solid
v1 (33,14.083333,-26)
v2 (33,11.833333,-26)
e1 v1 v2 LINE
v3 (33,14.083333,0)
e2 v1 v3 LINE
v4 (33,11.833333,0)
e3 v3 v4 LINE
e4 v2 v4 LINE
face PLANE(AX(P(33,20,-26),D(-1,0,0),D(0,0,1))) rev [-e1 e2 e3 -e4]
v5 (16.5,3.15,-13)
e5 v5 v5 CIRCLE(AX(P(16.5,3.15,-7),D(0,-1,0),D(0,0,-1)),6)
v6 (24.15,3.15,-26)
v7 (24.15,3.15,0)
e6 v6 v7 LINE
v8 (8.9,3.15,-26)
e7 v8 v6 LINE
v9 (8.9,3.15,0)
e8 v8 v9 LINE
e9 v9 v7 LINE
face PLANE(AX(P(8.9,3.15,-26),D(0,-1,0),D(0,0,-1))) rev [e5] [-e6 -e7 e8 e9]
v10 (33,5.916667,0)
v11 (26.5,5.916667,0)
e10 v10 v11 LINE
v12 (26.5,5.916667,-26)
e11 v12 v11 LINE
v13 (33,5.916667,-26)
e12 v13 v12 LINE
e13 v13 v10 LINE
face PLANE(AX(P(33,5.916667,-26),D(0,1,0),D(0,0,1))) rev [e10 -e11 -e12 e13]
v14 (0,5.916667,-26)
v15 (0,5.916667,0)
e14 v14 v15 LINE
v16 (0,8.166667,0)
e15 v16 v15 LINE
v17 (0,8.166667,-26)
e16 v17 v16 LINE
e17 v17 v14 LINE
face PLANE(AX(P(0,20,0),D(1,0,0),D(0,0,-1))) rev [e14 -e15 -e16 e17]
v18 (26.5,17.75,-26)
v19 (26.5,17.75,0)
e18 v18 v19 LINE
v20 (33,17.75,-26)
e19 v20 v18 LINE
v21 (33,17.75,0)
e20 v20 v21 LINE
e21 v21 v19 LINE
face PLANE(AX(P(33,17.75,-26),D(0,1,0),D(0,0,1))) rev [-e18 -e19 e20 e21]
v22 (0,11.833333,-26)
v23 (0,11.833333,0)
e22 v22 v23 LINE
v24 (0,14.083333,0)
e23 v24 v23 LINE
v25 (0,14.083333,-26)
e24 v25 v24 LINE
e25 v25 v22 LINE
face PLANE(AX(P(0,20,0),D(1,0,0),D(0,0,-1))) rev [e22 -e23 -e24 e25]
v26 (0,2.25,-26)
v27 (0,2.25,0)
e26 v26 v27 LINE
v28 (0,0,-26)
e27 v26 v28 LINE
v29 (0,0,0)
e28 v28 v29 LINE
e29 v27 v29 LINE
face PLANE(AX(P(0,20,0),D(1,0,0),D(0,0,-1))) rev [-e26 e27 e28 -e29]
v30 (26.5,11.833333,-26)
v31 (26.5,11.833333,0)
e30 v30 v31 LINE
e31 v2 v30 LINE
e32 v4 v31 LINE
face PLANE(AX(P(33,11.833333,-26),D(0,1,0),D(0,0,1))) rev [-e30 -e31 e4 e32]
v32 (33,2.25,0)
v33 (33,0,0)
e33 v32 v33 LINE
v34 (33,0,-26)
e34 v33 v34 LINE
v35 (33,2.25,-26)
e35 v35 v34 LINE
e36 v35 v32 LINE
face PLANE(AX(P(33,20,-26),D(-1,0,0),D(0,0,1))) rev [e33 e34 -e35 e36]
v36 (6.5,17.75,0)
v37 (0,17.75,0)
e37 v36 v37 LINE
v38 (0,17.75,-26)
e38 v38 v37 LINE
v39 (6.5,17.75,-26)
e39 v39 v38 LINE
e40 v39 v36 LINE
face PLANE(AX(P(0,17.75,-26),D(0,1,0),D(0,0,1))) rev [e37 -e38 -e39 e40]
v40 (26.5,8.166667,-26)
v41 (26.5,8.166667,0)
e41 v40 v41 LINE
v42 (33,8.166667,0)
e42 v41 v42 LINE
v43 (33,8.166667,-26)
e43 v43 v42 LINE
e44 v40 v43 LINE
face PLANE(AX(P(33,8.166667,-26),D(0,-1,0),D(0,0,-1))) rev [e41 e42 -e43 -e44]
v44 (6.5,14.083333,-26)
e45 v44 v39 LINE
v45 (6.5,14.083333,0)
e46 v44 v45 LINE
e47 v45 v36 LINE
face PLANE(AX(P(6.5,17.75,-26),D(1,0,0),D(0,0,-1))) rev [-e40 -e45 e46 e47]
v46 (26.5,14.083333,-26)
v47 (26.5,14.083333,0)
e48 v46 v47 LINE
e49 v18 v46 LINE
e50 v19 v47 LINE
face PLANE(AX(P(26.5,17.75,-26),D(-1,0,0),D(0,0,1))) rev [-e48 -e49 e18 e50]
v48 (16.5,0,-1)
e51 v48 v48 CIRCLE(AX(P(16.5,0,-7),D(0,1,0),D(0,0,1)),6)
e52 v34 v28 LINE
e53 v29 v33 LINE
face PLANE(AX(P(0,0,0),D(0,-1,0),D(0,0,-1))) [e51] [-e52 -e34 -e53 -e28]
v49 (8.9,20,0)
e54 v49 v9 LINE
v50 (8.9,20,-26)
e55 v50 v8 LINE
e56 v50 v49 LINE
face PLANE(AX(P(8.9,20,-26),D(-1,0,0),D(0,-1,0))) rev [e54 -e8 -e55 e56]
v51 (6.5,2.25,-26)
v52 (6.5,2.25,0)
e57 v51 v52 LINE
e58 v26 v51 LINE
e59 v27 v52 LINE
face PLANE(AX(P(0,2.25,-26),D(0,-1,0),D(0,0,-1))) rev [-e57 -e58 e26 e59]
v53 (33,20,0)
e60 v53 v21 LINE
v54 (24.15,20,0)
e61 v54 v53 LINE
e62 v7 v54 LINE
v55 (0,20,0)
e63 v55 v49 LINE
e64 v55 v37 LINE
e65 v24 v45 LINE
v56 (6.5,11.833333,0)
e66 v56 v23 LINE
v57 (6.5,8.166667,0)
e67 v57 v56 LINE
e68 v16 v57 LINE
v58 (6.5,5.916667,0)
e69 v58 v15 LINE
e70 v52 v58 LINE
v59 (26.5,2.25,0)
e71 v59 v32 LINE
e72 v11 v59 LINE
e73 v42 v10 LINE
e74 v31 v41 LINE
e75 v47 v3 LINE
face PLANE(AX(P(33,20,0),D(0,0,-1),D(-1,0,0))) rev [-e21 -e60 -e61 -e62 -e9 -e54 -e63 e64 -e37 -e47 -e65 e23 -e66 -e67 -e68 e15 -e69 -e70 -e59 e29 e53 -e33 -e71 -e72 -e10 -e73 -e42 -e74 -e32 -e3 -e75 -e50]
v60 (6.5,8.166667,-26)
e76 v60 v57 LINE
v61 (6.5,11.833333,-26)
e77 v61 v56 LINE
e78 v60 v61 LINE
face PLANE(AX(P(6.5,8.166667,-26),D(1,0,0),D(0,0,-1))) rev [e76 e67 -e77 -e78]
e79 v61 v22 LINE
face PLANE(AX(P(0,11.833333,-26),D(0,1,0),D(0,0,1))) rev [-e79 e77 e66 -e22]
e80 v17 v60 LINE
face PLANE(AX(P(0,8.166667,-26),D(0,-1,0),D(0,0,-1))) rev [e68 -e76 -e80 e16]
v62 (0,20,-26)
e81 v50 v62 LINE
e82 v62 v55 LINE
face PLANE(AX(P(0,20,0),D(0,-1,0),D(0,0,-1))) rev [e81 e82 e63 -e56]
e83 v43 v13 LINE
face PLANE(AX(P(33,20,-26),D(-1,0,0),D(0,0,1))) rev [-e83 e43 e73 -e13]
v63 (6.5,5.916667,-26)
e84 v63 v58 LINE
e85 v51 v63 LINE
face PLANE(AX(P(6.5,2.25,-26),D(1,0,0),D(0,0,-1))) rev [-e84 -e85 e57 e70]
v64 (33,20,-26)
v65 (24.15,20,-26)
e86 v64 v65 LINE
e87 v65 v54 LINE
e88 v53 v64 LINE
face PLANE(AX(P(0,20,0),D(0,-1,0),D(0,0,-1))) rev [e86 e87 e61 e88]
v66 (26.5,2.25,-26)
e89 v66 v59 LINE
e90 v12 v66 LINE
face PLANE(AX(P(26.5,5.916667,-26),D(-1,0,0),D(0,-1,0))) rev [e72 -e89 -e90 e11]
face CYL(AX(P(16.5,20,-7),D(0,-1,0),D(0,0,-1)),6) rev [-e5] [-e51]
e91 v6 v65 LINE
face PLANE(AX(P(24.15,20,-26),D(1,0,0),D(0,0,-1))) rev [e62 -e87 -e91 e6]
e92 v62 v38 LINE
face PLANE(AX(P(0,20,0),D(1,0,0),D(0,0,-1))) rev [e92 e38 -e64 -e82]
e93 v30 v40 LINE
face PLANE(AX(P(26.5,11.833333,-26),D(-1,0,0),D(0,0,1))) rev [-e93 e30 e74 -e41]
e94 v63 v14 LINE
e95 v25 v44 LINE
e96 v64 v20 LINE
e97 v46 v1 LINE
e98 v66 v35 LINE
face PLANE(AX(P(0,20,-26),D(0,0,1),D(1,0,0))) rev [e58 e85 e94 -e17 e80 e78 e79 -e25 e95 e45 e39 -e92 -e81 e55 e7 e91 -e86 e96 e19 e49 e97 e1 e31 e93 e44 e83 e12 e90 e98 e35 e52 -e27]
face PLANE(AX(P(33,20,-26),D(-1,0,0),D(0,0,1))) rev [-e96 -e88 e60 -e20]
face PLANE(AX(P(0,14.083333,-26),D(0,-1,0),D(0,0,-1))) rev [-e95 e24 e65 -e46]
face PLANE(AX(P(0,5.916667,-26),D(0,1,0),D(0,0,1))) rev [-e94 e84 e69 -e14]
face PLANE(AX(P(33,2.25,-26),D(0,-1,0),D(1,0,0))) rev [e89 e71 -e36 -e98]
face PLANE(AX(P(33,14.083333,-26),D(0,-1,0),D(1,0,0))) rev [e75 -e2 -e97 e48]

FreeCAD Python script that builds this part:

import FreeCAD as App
import Part
import Sketcher
Q = App.Units.Quantity


def add_polygon(sketch, points):
    """Adds a closed chain of lines whose ends are joined by coincident constraints."""
    first, n = sketch.GeometryCount, len(points)
    for a, b in zip(points, points[1:] + points[:1]):
        sketch.addGeometry(Part.LineSegment(App.Vector(*a, 0), App.Vector(*b, 0)), False)
    for i in range(n):
        sketch.addConstraint(Sketcher.Constraint("Coincident", first + i, 2, first + (i + 1) % n, 1))

doc = App.newDocument("Part")
body = doc.addObject("PartDesign::Body", "Body")

# Sketch on XZ plane
sketch1 = doc.addObject("Sketcher::SketchObject", "Sketch")
body.addObject(sketch1)
sketch1.AttachmentSupport = (doc.XZ_Plane, [""])
sketch1.MapMode = "FlatFace"
add_polygon(sketch1, [(0, -26), (0, 0), (33, 0), (33, -26)])  # lines 0-3
sketch1.addGeometry(Part.Circle(App.Vector(16, -7, 0), App.Vector(0, 0, 1), 6), False)  # 4
sketch1.addConstraint([
    Sketcher.Constraint("Vertical", 0),
    Sketcher.Constraint("Horizontal", 1),
    Sketcher.Constraint("Vertical", 2),
    Sketcher.Constraint("Horizontal", 3),
    Sketcher.Constraint("Coincident", 0, 2, -1, 1),
    Sketcher.Constraint("Diameter", 4, Q("12 mm")),
    Sketcher.Constraint("DistanceX", 1, 1, 1, 2, Q("33 mm")),
    Sketcher.Constraint("DistanceY", 0, 1, 0, 2, Q("26 mm")),
    Sketcher.Constraint("DistanceY", 4, 3, -1, 1, Q("7 mm")),
    Sketcher.Constraint("DistanceX", -1, 1, 4, 3, Q("16.5 mm")),
])
pad1 = doc.addObject("PartDesign::Pad", "Pad")
body.addObject(pad1)
pad1.Profile = sketch1
pad1.Length = 20
pad1.Reversed = True

# Sketch on XY plane
sketch2 = doc.addObject("Sketcher::SketchObject", "Sketch001")
body.addObject(sketch2)
sketch2.AttachmentSupport = (doc.XY_Plane, [""])
sketch2.MapMode = "FlatFace"
add_polygon(sketch2, [(0, 5.9), (0, 2.3), (6.5, 2.3), (6.5, 5.9)])  # lines 0-3
add_polygon(sketch2, [(0, 11.8), (0, 8.2), (6.5, 8.2), (6.5, 11.8)])  # lines 4-7
add_polygon(sketch2, [(0, 17.7), (0, 14.1), (6.5, 14.1), (6.5, 17.7)])  # lines 8-11
add_polygon(sketch2, [(26.5, 17.7), (26.5, 14.1), (33, 14.1), (33, 17.7)])  # lines 12-15
add_polygon(sketch2, [(26.5, 11.8), (26.5, 8.2), (33, 8.2), (33, 11.8)])  # lines 16-19
add_polygon(sketch2, [(26.5, 5.9), (26.5, 2.3), (33, 2.3), (33, 5.9)])  # lines 20-23
add_polygon(sketch2, [(8.9, 20), (8.9, 3.1), (24.1, 3.1), (24.1, 20)])  # lines 24-27
sketch2.addConstraint([
    Sketcher.Constraint("Vertical", 0),
    Sketcher.Constraint("Horizontal", 1),
    Sketcher.Constraint("Vertical", 2),
    Sketcher.Constraint("Horizontal", 3),
    Sketcher.Constraint("Vertical", 4),
    Sketcher.Constraint("Horizontal", 5),
    Sketcher.Constraint("Vertical", 6),
    Sketcher.Constraint("Horizontal", 7),
    Sketcher.Constraint("Vertical", 8),
    Sketcher.Constraint("Horizontal", 9),
    Sketcher.Constraint("Vertical", 10),
    Sketcher.Constraint("Horizontal", 11),
    Sketcher.Constraint("Vertical", 12),
    Sketcher.Constraint("Horizontal", 13),
    Sketcher.Constraint("Vertical", 14),
    Sketcher.Constraint("Horizontal", 15),
    Sketcher.Constraint("Vertical", 16),
    Sketcher.Constraint("Horizontal", 17),
    Sketcher.Constraint("Vertical", 18),
    Sketcher.Constraint("Horizontal", 19),
    Sketcher.Constraint("Vertical", 20),
    Sketcher.Constraint("Horizontal", 21),
    Sketcher.Constraint("Vertical", 22),
    Sketcher.Constraint("Horizontal", 23),
    Sketcher.Constraint("Vertical", 24),
    Sketcher.Constraint("Horizontal", 25),
    Sketcher.Constraint("Vertical", 26),
    Sketcher.Constraint("Horizontal", 27),
    Sketcher.Constraint("PointOnObject", 0, 2, -2),
    Sketcher.Constraint("PointOnObject", 4, 2, -2),
    Sketcher.Constraint("PointOnObject", 8, 2, -2),
    Sketcher.Constraint("Horizontal", 9, 2, 12, 2),
    Sketcher.Constraint("Horizontal", 11, 2, 14, 2),
    Sketcher.Constraint("Horizontal", 5, 2, 16, 2),
    Sketcher.Constraint("Horizontal", 7, 2, 18, 2),
    Sketcher.Constraint("Horizontal", 1, 2, 20, 2),
    Sketcher.Constraint("Horizontal", 3, 2, 22, 2),
    Sketcher.Constraint("Vertical", 2, 2, 5, 2),
    Sketcher.Constraint("Vertical", 6, 2, 9, 2),
    Sketcher.Constraint("Vertical", 15, 2, 16, 2),
    Sketcher.Constraint("Vertical", 14, 2, 17, 2),
    Sketcher.Constraint("Vertical", 19, 2, 20, 2),
    Sketcher.Constraint("Vertical", 18, 2, 21, 2),
    Sketcher.Constraint("Equal", 11, 13),
    Sketcher.Constraint("Equal", 2, 4),
    Sketcher.Constraint("Equal", 6, 8),
    Sketcher.Constraint("DistanceX", 1, 1, 1, 2, Q("6.5 mm")),
    Sketcher.Constraint("DistanceX", -1, 1, 13, 2, Q("33 mm")),
    Sketcher.Constraint("DistanceY", -1, 1, 26, 2, Q("20 mm")),
    Sketcher.Constraint("DistanceX", 25, 1, 25, 2, Q("15.25 mm")),
    Sketcher.Constraint("DistanceY", 24, 2, 24, 1, Q("16.85 mm")),
    Sketcher.Constraint("DistanceX", -1, 1, 24, 2, Q("8.9 mm")),
    Sketcher.Constraint("DistanceY", 1, 2, 24, 2, Q("0.9 mm")),
    Sketcher.Constraint("DistanceY", -1, 1, 10, 2, Q("17.75 mm")),
    Sketcher.Constraint("DistanceY", 3, 2, 4, 2, Q("2.25 mm")),
    Sketcher.Constraint("DistanceY", 7, 2, 8, 2, Q("2.25 mm")),
])
pocket1 = doc.addObject("PartDesign::Pocket", "Pocket")
body.addObject(pocket1)
pocket1.Profile = sketch2
pocket1.Length = 26

doc.recompute()
